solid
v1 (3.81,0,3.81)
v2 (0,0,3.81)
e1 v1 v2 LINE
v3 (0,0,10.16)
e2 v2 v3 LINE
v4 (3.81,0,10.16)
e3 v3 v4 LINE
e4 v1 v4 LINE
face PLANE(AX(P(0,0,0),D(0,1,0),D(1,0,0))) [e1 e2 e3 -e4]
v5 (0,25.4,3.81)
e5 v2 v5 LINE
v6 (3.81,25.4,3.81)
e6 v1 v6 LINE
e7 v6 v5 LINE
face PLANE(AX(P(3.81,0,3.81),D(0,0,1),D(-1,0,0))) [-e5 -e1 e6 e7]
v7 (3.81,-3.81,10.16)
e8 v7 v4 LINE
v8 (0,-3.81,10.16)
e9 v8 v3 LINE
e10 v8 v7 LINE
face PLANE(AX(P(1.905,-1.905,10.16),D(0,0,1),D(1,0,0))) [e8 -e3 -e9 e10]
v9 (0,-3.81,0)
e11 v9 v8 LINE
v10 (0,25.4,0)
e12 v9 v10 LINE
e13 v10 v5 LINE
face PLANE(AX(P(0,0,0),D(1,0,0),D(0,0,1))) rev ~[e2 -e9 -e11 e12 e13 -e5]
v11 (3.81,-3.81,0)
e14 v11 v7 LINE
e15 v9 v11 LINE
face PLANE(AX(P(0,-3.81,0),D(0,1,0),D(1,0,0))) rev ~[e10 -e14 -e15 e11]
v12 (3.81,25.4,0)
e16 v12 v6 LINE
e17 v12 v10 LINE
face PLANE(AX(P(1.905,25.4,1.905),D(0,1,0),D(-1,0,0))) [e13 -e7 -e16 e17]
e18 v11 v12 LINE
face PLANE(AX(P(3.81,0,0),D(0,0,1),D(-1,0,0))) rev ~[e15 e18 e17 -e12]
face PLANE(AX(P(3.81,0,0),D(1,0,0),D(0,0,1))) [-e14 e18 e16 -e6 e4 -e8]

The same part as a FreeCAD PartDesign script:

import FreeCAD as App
import Part
import Sketcher
from FreeCAD import Vector
Q = App.Units.Quantity

doc = App.newDocument("Part")
body = doc.addObject("PartDesign::Body", "Body")

# Sketch on XY plane
sketch1 = doc.addObject("Sketcher::SketchObject", "Sketch")
body.addObject(sketch1)
sketch1.AttachmentSupport = (doc.XY_Plane, [""])
sketch1.MapMode = "FlatFace"
sketch1.addGeometry([
    Part.LineSegment(Vector(0, 0, 0), Vector(0, -3.8, 0)),
    Part.LineSegment(Vector(0, -3.8, 0), Vector(3.8, -3.8, 0)),
    Part.LineSegment(Vector(3.8, -3.8, 0), Vector(3.8, 0, 0)),
    Part.LineSegment(Vector(3.8, 0, 0), Vector(0, 0, 0)),
], False)
sketch1.addConstraint([
    Sketcher.Constraint("Coincident", 0, 2, 1, 1),
    Sketcher.Constraint("Coincident", 1, 2, 2, 1),
    Sketcher.Constraint("Coincident", 2, 2, 3, 1),
    Sketcher.Constraint("Coincident", 3, 2, 0, 1),
    Sketcher.Constraint("Vertical", 0),
    Sketcher.Constraint("Horizontal", 1),
    Sketcher.Constraint("Vertical", 2),
    Sketcher.Constraint("Horizontal", 3),
    Sketcher.Constraint("Coincident", 3, 2, -1, 1),
    Sketcher.Constraint("Equal", 3, 0),
    Sketcher.Constraint("DistanceX", 1, 1, 1, 2, Q("0.15 in")),
])
pad1 = doc.addObject("PartDesign::Pad", "Pad")
body.addObject(pad1)
pad1.Profile = sketch1
pad1.Length = Q("0.4 in")

# Sketch on XZ plane
sketch2 = doc.addObject("Sketcher::SketchObject", "Sketch001")
body.addObject(sketch2)
sketch2.AttachmentSupport = (doc.XZ_Plane, [""])
sketch2.MapMode = "FlatFace"
sketch2.addGeometry([
    Part.LineSegment(Vector(3.8, 3.8, 0), Vector(3.8, 0, 0)),
    Part.LineSegment(Vector(3.8, 0, 0), Vector(0, 0, 0)),
    Part.LineSegment(Vector(0, 0, 0), Vector(0, 3.8, 0)),
    Part.LineSegment(Vector(0, 3.8, 0), Vector(3.8, 3.8, 0)),
], False)
sketch2.addConstraint([
    Sketcher.Constraint("Coincident", 0, 2, 1, 1),
    Sketcher.Constraint("Coincident", 1, 2, 2, 1),
    Sketcher.Constraint("Coincident", 2, 2, 3, 1),
    Sketcher.Constraint("Coincident", 3, 2, 0, 1),
    Sketcher.Constraint("Vertical", 0),
    Sketcher.Constraint("Horizontal", 1),
    Sketcher.Constraint("Vertical", 2),
    Sketcher.Constraint("Horizontal", 3),
    Sketcher.Constraint("Coincident", 1, 2, -1, 1),
    Sketcher.Constraint("Equal", 3, 0),
    Sketcher.Constraint("DistanceX", 1, 2, 1, 1, Q("0.15 in")),
])
pad2 = doc.addObject("PartDesign::Pad", "Pad001")
body.addObject(pad2)
pad2.Profile = sketch2
pad2.Length = Q("1 in")
pad2.Reversed = True

doc.recompute()
